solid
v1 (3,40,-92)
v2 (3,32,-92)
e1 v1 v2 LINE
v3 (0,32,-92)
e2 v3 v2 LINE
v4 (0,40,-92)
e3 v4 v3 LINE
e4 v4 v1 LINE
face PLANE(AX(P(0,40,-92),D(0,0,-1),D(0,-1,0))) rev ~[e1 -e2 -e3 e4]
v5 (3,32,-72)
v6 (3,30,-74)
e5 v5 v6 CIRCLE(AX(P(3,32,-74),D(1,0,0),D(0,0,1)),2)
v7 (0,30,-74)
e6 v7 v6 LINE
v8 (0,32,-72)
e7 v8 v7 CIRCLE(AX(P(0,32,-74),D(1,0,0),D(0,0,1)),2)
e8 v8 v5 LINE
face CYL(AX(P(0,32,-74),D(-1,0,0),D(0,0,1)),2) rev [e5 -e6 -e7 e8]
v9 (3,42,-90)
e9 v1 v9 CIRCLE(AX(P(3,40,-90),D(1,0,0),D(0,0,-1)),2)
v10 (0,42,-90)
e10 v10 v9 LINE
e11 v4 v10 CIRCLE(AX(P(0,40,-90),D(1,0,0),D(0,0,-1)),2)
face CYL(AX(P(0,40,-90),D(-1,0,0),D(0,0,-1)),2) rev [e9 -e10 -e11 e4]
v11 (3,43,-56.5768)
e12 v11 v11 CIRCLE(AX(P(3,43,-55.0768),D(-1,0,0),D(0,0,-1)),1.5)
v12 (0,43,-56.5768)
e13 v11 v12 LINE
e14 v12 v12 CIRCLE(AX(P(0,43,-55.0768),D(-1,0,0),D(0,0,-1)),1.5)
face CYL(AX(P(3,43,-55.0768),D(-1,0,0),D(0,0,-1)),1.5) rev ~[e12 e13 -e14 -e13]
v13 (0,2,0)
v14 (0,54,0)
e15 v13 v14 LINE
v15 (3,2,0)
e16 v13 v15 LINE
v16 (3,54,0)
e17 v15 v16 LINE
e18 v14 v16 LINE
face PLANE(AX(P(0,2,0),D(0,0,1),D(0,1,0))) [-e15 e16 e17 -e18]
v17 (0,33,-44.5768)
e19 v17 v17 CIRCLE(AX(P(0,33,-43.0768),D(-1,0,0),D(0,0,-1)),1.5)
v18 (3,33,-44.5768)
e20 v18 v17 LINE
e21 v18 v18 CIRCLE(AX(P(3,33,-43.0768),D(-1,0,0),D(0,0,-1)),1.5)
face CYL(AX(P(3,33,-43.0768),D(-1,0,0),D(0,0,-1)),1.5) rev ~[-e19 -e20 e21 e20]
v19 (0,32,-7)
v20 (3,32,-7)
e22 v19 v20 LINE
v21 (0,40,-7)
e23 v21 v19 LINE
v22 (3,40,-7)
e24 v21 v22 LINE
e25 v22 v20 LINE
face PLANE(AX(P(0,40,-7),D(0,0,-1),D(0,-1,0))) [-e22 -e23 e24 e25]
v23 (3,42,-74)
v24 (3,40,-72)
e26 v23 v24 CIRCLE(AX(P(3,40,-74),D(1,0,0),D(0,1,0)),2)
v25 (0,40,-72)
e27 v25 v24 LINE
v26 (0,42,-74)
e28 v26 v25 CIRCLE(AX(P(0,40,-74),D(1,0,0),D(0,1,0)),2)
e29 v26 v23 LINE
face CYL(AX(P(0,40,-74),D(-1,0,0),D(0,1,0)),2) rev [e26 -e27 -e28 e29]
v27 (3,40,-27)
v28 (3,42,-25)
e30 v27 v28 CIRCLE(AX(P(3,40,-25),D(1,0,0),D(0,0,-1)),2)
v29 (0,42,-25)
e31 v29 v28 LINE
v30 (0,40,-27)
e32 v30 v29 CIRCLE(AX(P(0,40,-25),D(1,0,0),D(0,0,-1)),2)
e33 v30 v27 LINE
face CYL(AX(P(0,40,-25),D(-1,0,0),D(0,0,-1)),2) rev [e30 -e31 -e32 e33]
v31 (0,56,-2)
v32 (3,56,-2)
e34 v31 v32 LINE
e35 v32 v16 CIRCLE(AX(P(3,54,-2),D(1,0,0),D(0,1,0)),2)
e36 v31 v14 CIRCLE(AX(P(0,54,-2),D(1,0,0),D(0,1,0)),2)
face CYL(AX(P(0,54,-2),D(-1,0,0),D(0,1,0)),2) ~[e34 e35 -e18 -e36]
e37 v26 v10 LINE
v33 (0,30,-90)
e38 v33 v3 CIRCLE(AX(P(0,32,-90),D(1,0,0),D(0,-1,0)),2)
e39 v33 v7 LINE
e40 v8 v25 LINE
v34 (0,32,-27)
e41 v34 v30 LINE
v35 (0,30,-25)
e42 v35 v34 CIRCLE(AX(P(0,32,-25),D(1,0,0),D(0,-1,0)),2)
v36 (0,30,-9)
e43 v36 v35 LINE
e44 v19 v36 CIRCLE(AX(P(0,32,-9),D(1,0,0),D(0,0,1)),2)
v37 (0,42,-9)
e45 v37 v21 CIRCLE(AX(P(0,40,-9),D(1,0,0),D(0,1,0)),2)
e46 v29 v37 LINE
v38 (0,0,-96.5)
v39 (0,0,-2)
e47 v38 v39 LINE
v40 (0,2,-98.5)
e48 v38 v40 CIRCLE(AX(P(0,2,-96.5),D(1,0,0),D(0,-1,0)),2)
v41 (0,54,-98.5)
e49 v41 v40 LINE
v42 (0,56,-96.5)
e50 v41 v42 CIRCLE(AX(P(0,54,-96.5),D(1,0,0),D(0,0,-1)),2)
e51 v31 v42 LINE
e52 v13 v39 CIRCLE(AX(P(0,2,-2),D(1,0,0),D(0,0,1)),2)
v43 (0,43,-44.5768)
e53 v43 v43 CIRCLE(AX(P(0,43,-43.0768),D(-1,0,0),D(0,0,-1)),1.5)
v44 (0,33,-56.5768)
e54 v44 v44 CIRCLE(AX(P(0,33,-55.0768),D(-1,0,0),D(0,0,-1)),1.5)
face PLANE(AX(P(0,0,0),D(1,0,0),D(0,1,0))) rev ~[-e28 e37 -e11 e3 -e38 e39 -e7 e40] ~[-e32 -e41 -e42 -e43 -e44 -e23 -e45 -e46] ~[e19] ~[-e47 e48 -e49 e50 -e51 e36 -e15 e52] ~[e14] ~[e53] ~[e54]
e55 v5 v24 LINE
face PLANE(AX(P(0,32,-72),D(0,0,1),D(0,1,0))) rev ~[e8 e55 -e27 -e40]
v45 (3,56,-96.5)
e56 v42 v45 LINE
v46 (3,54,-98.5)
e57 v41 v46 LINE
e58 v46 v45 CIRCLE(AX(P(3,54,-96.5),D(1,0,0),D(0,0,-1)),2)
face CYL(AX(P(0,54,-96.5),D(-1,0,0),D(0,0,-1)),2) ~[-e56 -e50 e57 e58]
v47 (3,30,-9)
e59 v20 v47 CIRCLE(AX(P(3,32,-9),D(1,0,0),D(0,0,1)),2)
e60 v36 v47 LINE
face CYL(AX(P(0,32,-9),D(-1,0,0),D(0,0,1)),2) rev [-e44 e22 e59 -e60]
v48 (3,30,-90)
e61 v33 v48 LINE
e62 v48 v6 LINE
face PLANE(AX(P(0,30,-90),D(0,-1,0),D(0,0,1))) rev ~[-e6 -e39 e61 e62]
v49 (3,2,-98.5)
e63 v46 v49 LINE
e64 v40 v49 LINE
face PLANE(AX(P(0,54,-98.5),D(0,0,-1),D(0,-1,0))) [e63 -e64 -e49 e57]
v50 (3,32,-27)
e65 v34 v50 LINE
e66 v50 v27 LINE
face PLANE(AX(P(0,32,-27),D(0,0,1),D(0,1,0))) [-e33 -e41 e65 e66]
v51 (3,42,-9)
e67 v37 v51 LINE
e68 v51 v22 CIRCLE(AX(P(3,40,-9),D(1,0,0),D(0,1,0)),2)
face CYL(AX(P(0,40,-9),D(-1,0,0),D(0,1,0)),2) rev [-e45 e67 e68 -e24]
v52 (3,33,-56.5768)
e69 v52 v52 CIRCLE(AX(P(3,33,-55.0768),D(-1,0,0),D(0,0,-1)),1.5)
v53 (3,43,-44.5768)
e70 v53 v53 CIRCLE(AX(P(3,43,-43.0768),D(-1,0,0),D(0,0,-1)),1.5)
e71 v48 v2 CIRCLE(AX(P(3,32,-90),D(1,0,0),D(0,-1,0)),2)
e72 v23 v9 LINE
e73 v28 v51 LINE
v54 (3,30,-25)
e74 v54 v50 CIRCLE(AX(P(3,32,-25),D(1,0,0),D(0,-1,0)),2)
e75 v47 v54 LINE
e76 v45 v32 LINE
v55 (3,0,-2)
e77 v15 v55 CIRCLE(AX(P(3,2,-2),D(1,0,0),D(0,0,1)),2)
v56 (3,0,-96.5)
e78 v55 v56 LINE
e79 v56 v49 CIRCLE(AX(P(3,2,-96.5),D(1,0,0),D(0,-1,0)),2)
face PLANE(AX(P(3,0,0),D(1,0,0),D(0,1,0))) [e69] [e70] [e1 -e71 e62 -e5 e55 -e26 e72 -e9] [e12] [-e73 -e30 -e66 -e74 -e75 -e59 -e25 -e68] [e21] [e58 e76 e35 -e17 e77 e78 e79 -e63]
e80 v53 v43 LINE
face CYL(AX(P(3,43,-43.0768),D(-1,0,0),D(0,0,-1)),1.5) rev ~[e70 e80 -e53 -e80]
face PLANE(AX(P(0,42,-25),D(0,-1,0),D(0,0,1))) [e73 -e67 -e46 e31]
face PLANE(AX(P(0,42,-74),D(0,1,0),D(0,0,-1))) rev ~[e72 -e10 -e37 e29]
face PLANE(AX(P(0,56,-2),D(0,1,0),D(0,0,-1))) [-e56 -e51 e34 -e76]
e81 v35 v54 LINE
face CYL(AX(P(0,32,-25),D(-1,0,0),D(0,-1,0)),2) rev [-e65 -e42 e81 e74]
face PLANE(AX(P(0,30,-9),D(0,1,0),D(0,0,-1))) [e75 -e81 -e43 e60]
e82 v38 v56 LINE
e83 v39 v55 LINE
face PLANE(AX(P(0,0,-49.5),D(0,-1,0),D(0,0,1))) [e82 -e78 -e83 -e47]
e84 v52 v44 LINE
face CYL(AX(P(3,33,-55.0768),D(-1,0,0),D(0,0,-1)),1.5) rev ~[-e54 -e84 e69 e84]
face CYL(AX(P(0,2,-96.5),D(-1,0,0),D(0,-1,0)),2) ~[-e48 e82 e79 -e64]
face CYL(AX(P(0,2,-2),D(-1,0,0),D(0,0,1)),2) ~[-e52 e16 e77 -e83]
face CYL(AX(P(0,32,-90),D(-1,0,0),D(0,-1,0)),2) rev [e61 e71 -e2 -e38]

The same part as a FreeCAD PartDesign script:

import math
import FreeCAD as App
import Part
import Sketcher

V = App.Vector
Q = App.Units.Quantity

doc = App.newDocument("Part")
params = doc.addObject("Spreadsheet::Sheet", "Params")
for row, (alias, value) in enumerate([
    ("sketch1_radius", "2 mm"),
    ("sketch1_height", "16 mm"),
    ("pad1_length", "3 mm"),
    ("sketch2_diameter", "3 mm"),
    ("hole_diameter", "3 mm"),
], start=1):
    params.set(f"A{row}", alias)
    params.set(f"B{row}", "=" + value)
    params.setAlias(f"B{row}", alias)

body = doc.addObject("PartDesign::Body", "Body")

# Sketch on YZ plane
sketch1 = doc.addObject("Sketcher::SketchObject", "Sketch")
body.addObject(sketch1)
sketch1.AttachmentSupport = (doc.YZ_Plane, [""])
sketch1.MapMode = "FlatFace"
sketch1.addGeometry(Part.LineSegment(V(54, 0, 0), V(2, 0, 0)), False)
sketch1.addGeometry(Part.ArcOfCircle(Part.Circle(V(2, -2, 0), V(0, 0, 1), 2), math.radians(90), math.radians(180)), False)
sketch1.addGeometry(Part.LineSegment(V(0, -2, 0), V(0, -96.5, 0)), False)
sketch1.addGeometry(Part.ArcOfCircle(Part.Circle(V(2, -96.5, 0), V(0, 0, 1), 2), math.radians(180), math.radians(270)), False)
sketch1.addGeometry(Part.LineSegment(V(2, -98.5, 0), V(54, -98.5, 0)), False)
sketch1.addGeometry(Part.ArcOfCircle(Part.Circle(V(54, -96.5, 0), V(0, 0, 1), 2), math.radians(-90), math.radians(0)), False)
sketch1.addGeometry(Part.LineSegment(V(56, -96.5, 0), V(56, -2, 0)), False)
sketch1.addGeometry(Part.ArcOfCircle(Part.Circle(V(54, -2, 0), V(0, 0, 1), 2), math.radians(0), math.radians(90)), False)
sketch1.addGeometry(Part.LineSegment(V(32, -7, 0), V(40, -7, 0)), False)
sketch1.addGeometry(Part.ArcOfCircle(Part.Circle(V(40, -9, 0), V(0, 0, 1), 2), math.radians(0), math.radians(90)), False)
sketch1.addGeometry(Part.LineSegment(V(42, -9, 0), V(42, -25, 0)), False)
sketch1.addGeometry(Part.ArcOfCircle(Part.Circle(V(40, -25, 0), V(0, 0, 1), 2), math.radians(-90), math.radians(0)), False)
sketch1.addGeometry(Part.LineSegment(V(40, -27, 0), V(32, -27, 0)), False)
sketch1.addGeometry(Part.ArcOfCircle(Part.Circle(V(32, -25, 0), V(0, 0, 1), 2), math.radians(180), math.radians(270)), False)
sketch1.addGeometry(Part.LineSegment(V(30, -25, 0), V(30, -9, 0)), False)
sketch1.addGeometry(Part.ArcOfCircle(Part.Circle(V(32, -9, 0), V(0, 0, 1), 2), math.radians(90), math.radians(180)), False)
sketch1.addGeometry(Part.LineSegment(V(40, -92, 0), V(32, -92, 0)), False)
sketch1.addGeometry(Part.ArcOfCircle(Part.Circle(V(32, -90, 0), V(0, 0, 1), 2), math.radians(180), math.radians(270)), False)
sketch1.addGeometry(Part.LineSegment(V(30, -90, 0), V(30, -74, 0)), False)
sketch1.addGeometry(Part.ArcOfCircle(Part.Circle(V(32, -74, 0), V(0, 0, 1), 2), math.radians(90), math.radians(180)), False)
sketch1.addGeometry(Part.LineSegment(V(32, -72, 0), V(40, -72, 0)), False)
sketch1.addGeometry(Part.ArcOfCircle(Part.Circle(V(40, -74, 0), V(0, 0, 1), 2), math.radians(0), math.radians(90)), False)
sketch1.addGeometry(Part.LineSegment(V(42, -74, 0), V(42, -90, 0)), False)
sketch1.addGeometry(Part.ArcOfCircle(Part.Circle(V(40, -90, 0), V(0, 0, 1), 2), math.radians(-90), math.radians(0)), False)
sketch1.addConstraint(Sketcher.Constraint("Tangent", 0, 2, 1, 1))
sketch1.addConstraint(Sketcher.Constraint("Tangent", 1, 2, 2, 1))
sketch1.addConstraint(Sketcher.Constraint("Tangent", 2, 2, 3, 1))
sketch1.addConstraint(Sketcher.Constraint("Tangent", 3, 2, 4, 1))
sketch1.addConstraint(Sketcher.Constraint("Tangent", 4, 2, 5, 1))
sketch1.addConstraint(Sketcher.Constraint("Tangent", 5, 2, 6, 1))
sketch1.addConstraint(Sketcher.Constraint("Tangent", 6, 2, 7, 1))
sketch1.addConstraint(Sketcher.Constraint("Tangent", 7, 2, 0, 1))
sketch1.addConstraint(Sketcher.Constraint("Tangent", 8, 2, 9, 2))
sketch1.addConstraint(Sketcher.Constraint("Tangent", 9, 1, 10, 1))
sketch1.addConstraint(Sketcher.Constraint("Tangent", 10, 2, 11, 2))
sketch1.addConstraint(Sketcher.Constraint("Tangent", 11, 1, 12, 1))
sketch1.addConstraint(Sketcher.Constraint("Tangent", 12, 2, 13, 2))
sketch1.addConstraint(Sketcher.Constraint("Tangent", 13, 1, 14, 1))
sketch1.addConstraint(Sketcher.Constraint("Tangent", 14, 2, 15, 2))
sketch1.addConstraint(Sketcher.Constraint("Tangent", 15, 1, 8, 1))
sketch1.addConstraint(Sketcher.Constraint("Tangent", 16, 2, 17, 2))
sketch1.addConstraint(Sketcher.Constraint("Tangent", 17, 1, 18, 1))
sketch1.addConstraint(Sketcher.Constraint("Tangent", 18, 2, 19, 2))
sketch1.addConstraint(Sketcher.Constraint("Tangent", 19, 1, 20, 1))
sketch1.addConstraint(Sketcher.Constraint("Tangent", 20, 2, 21, 2))
sketch1.addConstraint(Sketcher.Constraint("Tangent", 21, 1, 22, 1))
sketch1.addConstraint(Sketcher.Constraint("Tangent", 22, 2, 23, 2))
sketch1.addConstraint(Sketcher.Constraint("Tangent", 23, 1, 16, 1))
sketch1.addConstraint(Sketcher.Constraint("Horizontal", 0))
sketch1.addConstraint(Sketcher.Constraint("Vertical", 2))
sketch1.addConstraint(Sketcher.Constraint("Horizontal", 4))
sketch1.addConstraint(Sketcher.Constraint("Vertical", 6))
sketch1.addConstraint(Sketcher.Constraint("Horizontal", 8))
sketch1.addConstraint(Sketcher.Constraint("Vertical", 10))
sketch1.addConstraint(Sketcher.Constraint("Horizontal", 12))
sketch1.addConstraint(Sketcher.Constraint("Vertical", 14))
sketch1.addConstraint(Sketcher.Constraint("Horizontal", 16))
sketch1.addConstraint(Sketcher.Constraint("Vertical", 18))
sketch1.addConstraint(Sketcher.Constraint("Horizontal", 20))
sketch1.addConstraint(Sketcher.Constraint("Vertical", 22))
sketch1.addConstraint(Sketcher.Constraint("Equal", 1, 3))
sketch1.addConstraint(Sketcher.Constraint("Equal", 3, 5))
sketch1.addConstraint(Sketcher.Constraint("Equal", 5, 7))
sketch1.addConstraint(Sketcher.Constraint("Equal", 7, 9))
sketch1.addConstraint(Sketcher.Constraint("Equal", 9, 11))
sketch1.addConstraint(Sketcher.Constraint("Equal", 11, 13))
sketch1.addConstraint(Sketcher.Constraint("Equal", 13, 15))
sketch1.addConstraint(Sketcher.Constraint("Equal", 15, 17))
sketch1.addConstraint(Sketcher.Constraint("Equal", 17, 19))
sketch1.addConstraint(Sketcher.Constraint("Equal", 19, 21))
sketch1.addConstraint(Sketcher.Constraint("Equal", 21, 23))
sketch1.addConstraint(Sketcher.Constraint("PointOnObject", 0, 2, -1))
sketch1.addConstraint(Sketcher.Constraint("PointOnObject", 1, 2, -2))
sketch1.addConstraint(Sketcher.Constraint("Vertical", 15, 3, 17, 3))
sketch1.addConstraint(Sketcher.Constraint("Vertical", 11, 3, 21, 3))
sketch1.addConstraint(Sketcher.Constraint("Equal", 14, 18))
sketch1.addConstraint(Sketcher.Constraint("Radius", 1, Q("2 mm")))
sketch1.addConstraint(Sketcher.Constraint("DistanceX", -1, 1, 5, 2, Q("56 mm")))
sketch1.addConstraint(Sketcher.Constraint("DistanceY", 8, 2, -1, 1, Q("7 mm")))
sketch1.addConstraint(Sketcher.Constraint("DistanceX", -1, 1, 13, 1, Q("30 mm")))
sketch1.addConstraint(Sketcher.Constraint("DistanceX", 9, 1, 7, 3, Q("12 mm")))
sketch1.addConstraint(Sketcher.Constraint("DistanceY", 3, 2, -1, 1, Q("98.5 mm")))
sketch1.addConstraint(Sketcher.Constraint("DistanceY", 10, 2, 10, 1, Q("16 mm")))
sketch1.addConstraint(Sketcher.Constraint("DistanceY", 17, 3, -1, 1, Q("90 mm")))
sketch1.setExpression("Constraints[52]", "Params.sketch1_radius")
sketch1.setExpression("Constraints[58]", "Params.sketch1_height")
pad1 = doc.addObject("PartDesign::Pad", "Pad")
body.addObject(pad1)
pad1.Profile = sketch1
pad1.setExpression("Length", "Params.pad1_length")

# Sketch on YZ plane
sketch2 = doc.addObject("Sketcher::SketchObject", "Sketch001")
body.addObject(sketch2)
sketch2.AttachmentSupport = (doc.YZ_Plane, [""])
sketch2.MapMode = "FlatFace"
sketch2.AttachmentOffset = App.Placement(V(0, 0, 3), App.Rotation())
sketch2.addGeometry(Part.Circle(V(43, -43.1, 0), V(0, 0, 1), 1.5), False)
sketch2.addGeometry(Part.Circle(V(33, -43.1, 0), V(0, 0, 1), 1.5), False)
sketch2.addGeometry(Part.Circle(V(33, -55.1, 0), V(0, 0, 1), 1.5), False)
sketch2.addGeometry(Part.Circle(V(43, -55.1, 0), V(0, 0, 1), 1.5), False)
sketch2.addConstraint(Sketcher.Constraint("Equal", 0, 1))
sketch2.addConstraint(Sketcher.Constraint("Equal", 1, 2))
sketch2.addConstraint(Sketcher.Constraint("Equal", 2, 3))
sketch2.addConstraint(Sketcher.Constraint("Horizontal", 0, 3, 1, 3))
sketch2.addConstraint(Sketcher.Constraint("Horizontal", 2, 3, 3, 3))
sketch2.addConstraint(Sketcher.Constraint("Vertical", 1, 3, 2, 3))
sketch2.addConstraint(Sketcher.Constraint("Vertical", 0, 3, 3, 3))
sketch2.addConstraint(Sketcher.Constraint("Diameter", 0, Q("3 mm")))
sketch2.addConstraint(Sketcher.Constraint("DistanceX", -1, 1, 0, 3, Q("43 mm")))
sketch2.addConstraint(Sketcher.Constraint("DistanceX", -1, 1, 1, 3, Q("33 mm")))
sketch2.addConstraint(Sketcher.Constraint("DistanceY", 2, 3, 1, 3, Q("12 mm")))
sketch2.addConstraint(Sketcher.Constraint("DistanceY", 0, 3, -1, 1, Q("43.0768 mm")))
sketch2.setExpression("Constraints[7]", "Params.sketch2_diameter")
doc.recompute()
hole = doc.addObject("PartDesign::Hole", "Hole")
body.addObject(hole)
hole.Profile = sketch2
hole.ThreadType = "None"
hole.setExpression("Diameter", "Params.hole_diameter")
hole.DepthType = "ThroughAll"

doc.recompute()
